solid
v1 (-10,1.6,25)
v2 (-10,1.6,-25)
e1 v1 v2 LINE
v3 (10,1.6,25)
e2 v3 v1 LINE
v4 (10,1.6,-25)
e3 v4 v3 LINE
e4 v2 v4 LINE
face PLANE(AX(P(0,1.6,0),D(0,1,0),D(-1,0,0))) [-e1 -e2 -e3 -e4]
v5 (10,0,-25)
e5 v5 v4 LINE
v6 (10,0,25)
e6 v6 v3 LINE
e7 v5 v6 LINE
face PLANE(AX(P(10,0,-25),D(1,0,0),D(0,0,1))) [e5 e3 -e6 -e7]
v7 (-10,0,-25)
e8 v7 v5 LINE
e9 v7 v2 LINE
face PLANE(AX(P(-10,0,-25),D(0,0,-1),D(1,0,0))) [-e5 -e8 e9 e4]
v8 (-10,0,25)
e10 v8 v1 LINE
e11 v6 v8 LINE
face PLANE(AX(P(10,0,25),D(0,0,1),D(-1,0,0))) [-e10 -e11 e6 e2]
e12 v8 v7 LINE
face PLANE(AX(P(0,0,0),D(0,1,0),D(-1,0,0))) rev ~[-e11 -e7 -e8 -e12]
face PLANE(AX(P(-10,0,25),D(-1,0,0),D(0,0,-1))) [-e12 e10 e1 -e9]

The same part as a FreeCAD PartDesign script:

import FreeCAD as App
import Part
import Sketcher
from FreeCAD import Vector
Q = App.Units.Quantity


def add_polygon(sketch, points):
    """Adds a closed chain of lines whose ends are joined by coincident constraints."""
    first, n = sketch.GeometryCount, len(points)
    for a, b in zip(points, points[1:] + points[:1]):
        sketch.addGeometry(Part.LineSegment(App.Vector(*a, 0), App.Vector(*b, 0)), False)
    for i in range(n):
        sketch.addConstraint(Sketcher.Constraint("Coincident", first + i, 2, first + (i + 1) % n, 1))

doc = App.newDocument("Part")
params = doc.addObject("Spreadsheet::Sheet", "Params")
for row, (alias, value) in enumerate([
    ("pad1_length", "0.0629921 in"),
], start=1):
    params.set(f"A{row}", alias)
    params.set(f"B{row}", "=" + value)
    params.setAlias(f"B{row}", alias)

body = doc.addObject("PartDesign::Body", "Body")

sketch1 = doc.addObject("Sketcher::SketchObject", "Sketch")
body.addObject(sketch1)
sketch1.AttachmentSupport = (doc.XZ_Plane, [""])
sketch1.MapMode = "FlatFace"
add_polygon(sketch1, [(-10, 25), (10, 25), (10, -25), (-10, -25)])
sketch1.addConstraint([
    Sketcher.Constraint("Horizontal", 0),
    Sketcher.Constraint("Vertical", 1),
    Sketcher.Constraint("Horizontal", 2),
    Sketcher.Constraint("Vertical", 3),
    Sketcher.Constraint("Symmetric", 0, 2, 2, 2, -1, 1),
    Sketcher.Constraint("DistanceX", 0, 1, 0, 2, Q("0.7874 in")),
    Sketcher.Constraint("DistanceY", 1, 2, 1, 1, Q("1.9685 in")),
])
pad1 = doc.addObject("PartDesign::Pad", "Pad")
body.addObject(pad1)
pad1.Profile = sketch1
pad1.setExpression("Length", "Params.pad1_length")
pad1.Reversed = True

doc.recompute()
